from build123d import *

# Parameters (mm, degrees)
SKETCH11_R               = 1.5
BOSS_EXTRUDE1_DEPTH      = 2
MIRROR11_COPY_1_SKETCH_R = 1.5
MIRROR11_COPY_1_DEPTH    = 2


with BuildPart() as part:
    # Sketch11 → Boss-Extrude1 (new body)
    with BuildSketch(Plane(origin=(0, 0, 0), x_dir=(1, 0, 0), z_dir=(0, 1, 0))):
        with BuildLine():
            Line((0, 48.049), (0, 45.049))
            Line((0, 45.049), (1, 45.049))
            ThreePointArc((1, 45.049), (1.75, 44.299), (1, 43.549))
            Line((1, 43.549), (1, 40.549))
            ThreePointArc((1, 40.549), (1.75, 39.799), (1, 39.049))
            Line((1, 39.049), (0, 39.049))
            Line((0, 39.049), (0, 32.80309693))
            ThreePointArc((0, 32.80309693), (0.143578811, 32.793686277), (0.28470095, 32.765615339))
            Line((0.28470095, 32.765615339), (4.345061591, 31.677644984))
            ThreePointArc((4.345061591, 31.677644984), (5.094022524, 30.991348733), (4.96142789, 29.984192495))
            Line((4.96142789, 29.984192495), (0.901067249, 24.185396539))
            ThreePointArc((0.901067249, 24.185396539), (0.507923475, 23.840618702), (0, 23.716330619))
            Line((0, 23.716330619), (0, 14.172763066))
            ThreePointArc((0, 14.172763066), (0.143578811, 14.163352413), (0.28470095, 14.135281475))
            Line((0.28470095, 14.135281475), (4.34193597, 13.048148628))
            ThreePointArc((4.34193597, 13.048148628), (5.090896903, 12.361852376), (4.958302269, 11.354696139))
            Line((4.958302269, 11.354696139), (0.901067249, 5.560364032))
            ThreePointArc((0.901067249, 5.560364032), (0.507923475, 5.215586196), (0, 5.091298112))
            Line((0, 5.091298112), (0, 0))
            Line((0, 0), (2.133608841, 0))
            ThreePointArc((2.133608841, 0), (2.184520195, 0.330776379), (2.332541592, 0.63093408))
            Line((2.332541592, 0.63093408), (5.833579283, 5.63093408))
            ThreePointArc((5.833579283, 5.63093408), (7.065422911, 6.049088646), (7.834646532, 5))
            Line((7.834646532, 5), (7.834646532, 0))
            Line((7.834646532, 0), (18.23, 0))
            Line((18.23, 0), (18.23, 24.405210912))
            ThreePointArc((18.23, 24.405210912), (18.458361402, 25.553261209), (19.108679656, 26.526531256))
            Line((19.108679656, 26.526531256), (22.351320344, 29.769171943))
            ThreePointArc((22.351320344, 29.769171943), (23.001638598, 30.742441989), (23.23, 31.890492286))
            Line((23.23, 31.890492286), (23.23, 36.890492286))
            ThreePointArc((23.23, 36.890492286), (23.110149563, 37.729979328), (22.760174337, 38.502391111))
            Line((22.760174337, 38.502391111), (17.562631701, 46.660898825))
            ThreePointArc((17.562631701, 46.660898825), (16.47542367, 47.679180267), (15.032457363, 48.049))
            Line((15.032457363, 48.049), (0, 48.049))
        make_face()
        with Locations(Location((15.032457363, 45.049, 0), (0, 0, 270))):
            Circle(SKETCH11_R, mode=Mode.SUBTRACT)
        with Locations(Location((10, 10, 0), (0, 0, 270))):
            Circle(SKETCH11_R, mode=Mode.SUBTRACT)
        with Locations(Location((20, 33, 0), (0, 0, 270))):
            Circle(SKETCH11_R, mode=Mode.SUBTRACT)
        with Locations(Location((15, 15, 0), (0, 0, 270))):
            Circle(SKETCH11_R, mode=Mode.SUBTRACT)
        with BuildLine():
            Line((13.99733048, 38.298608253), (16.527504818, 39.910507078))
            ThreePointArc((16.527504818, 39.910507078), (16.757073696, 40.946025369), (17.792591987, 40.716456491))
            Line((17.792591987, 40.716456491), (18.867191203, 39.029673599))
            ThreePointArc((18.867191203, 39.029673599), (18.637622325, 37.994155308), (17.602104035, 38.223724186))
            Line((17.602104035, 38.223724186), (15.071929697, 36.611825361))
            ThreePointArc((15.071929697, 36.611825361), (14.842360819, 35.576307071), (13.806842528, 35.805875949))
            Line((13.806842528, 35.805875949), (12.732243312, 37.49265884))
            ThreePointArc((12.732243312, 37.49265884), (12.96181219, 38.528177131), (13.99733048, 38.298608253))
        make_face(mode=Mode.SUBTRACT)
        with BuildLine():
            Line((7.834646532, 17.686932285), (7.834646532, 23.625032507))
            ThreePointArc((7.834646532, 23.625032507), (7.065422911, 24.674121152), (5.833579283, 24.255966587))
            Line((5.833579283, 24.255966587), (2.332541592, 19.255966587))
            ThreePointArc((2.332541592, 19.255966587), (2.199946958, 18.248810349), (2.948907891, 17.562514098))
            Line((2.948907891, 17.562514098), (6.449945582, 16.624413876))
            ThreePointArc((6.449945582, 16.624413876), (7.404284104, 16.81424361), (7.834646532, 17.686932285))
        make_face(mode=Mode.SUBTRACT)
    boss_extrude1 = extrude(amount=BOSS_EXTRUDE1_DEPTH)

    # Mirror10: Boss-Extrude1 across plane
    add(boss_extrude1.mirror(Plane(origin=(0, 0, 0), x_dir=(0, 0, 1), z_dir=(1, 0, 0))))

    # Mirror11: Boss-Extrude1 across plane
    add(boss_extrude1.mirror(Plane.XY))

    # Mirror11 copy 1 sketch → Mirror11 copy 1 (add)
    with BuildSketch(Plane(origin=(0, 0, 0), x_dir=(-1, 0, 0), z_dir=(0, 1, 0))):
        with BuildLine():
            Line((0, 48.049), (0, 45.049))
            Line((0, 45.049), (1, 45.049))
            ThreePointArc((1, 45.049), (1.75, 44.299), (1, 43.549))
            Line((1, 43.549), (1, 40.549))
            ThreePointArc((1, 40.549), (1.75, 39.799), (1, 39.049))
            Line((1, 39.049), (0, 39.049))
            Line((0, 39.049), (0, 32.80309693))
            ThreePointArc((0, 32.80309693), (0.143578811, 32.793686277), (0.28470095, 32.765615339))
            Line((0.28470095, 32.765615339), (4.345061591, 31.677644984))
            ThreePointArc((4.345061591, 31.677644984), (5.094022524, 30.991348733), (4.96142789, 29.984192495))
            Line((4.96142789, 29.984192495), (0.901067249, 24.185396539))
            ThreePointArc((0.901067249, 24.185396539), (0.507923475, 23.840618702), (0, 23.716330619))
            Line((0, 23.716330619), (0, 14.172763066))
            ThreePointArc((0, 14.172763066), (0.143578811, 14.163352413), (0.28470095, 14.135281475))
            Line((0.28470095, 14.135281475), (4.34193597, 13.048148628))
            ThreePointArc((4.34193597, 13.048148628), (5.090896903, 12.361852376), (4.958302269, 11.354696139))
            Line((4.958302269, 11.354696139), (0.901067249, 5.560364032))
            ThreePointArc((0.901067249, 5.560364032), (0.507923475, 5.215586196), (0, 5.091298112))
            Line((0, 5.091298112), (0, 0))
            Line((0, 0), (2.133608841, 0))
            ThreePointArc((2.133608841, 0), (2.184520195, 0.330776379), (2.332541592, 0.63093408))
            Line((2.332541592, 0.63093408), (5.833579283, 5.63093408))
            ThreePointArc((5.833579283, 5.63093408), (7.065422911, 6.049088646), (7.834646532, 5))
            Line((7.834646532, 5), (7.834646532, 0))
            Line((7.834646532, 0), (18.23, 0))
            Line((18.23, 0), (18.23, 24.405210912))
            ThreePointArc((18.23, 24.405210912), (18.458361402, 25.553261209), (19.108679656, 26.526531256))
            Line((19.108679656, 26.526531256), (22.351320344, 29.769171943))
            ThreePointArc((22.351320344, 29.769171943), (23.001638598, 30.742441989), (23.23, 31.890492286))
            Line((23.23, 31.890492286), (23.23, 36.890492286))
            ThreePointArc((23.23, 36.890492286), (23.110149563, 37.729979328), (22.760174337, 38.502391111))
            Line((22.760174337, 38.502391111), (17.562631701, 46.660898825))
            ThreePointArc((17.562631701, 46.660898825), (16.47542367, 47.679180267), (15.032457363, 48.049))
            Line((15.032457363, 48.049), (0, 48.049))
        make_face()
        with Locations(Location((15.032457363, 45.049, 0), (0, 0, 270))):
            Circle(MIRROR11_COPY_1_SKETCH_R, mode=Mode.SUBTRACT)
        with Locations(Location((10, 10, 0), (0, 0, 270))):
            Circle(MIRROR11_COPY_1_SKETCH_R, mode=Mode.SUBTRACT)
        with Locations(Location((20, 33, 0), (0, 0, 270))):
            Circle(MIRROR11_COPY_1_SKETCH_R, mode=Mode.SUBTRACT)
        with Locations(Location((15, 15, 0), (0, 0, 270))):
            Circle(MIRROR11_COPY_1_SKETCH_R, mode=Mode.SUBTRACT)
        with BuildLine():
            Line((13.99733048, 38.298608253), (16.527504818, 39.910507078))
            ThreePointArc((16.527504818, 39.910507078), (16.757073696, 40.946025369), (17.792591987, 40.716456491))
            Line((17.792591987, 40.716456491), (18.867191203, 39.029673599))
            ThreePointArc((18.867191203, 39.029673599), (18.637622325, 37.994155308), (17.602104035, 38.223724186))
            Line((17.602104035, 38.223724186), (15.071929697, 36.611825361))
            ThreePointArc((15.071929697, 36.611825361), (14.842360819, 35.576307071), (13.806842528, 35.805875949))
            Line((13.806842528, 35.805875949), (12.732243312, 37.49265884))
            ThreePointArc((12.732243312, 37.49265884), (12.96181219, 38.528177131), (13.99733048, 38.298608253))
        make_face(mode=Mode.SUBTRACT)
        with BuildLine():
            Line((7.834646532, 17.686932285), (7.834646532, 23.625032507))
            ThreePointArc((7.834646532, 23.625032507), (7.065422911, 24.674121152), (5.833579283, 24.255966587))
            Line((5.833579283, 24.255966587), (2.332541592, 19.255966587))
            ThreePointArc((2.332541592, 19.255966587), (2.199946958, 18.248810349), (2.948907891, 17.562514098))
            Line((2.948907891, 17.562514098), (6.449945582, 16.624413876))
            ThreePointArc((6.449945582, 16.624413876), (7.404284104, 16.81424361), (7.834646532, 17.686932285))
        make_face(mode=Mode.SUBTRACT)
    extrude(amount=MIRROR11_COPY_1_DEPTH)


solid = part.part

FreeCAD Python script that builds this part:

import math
import FreeCAD as App
import Part
import Sketcher
Q = App.Units.Quantity

doc = App.newDocument("Part")
params = doc.addObject("Spreadsheet::Sheet", "Params")
for row, (alias, value) in enumerate([
    ("sketch1_diameter", "3 mm"),
    ("sketch1_radius", "3 mm"),
    ("sketch1_radius2", "1.1 mm"),
    ("sketch1_width", "1 mm"),
    ("sketch1_height", "5 mm"),
    ("pad1_length", "2 mm"),
    ("sketch2_diameter", "3 mm"),
    ("sketch2_radius", "3 mm"),
    ("sketch2_radius2", "1.1 mm"),
    ("sketch2_width", "1 mm"),
    ("sketch2_height", "5 mm"),
    ("pad2_length", "2 mm"),
], start=1):
    params.set(f"A{row}", alias)
    params.set(f"B{row}", "=" + value)
    params.setAlias(f"B{row}", alias)

body = doc.addObject("PartDesign::Body", "Body")

# Sketch on XZ plane
sketch1 = body.newObject("Sketcher::SketchObject", "Sketch")
sketch1.AttachmentSupport = (doc.getObject("XZ_Plane"), [""])
sketch1.MapMode = "FlatFace"
sketch1.addGeometry(Part.LineSegment(App.Vector(0, -48.049, 0), App.Vector(0, -45.049, 0)), False)
sketch1.addGeometry(Part.LineSegment(App.Vector(0, -45.049, 0), App.Vector(1, -45.049, 0)), False)
sketch1.addGeometry(Part.ArcOfCircle(Part.Circle(App.Vector(1, -44.299, 0), App.Vector(0, 0, 1), 0.75), math.radians(-90), math.radians(90)), False)
sketch1.addGeometry(Part.LineSegment(App.Vector(1, -43.549, 0), App.Vector(1, -40.549, 0)), False)
sketch1.addGeometry(Part.ArcOfCircle(Part.Circle(App.Vector(1, -39.799, 0), App.Vector(0, 0, 1), 0.75), math.radians(-90), math.radians(90)), False)
sketch1.addGeometry(Part.LineSegment(App.Vector(1, -39.049, 0), App.Vector(0, -39.049, 0)), False)
sketch1.addGeometry(Part.LineSegment(App.Vector(0, -39.049, 0), App.Vector(0, -32.803097, 0)), False)
sketch1.addGeometry(Part.ArcOfCircle(Part.Circle(App.Vector(0, -31.703097, 0), App.Vector(0, 0, 1), 1.1), math.radians(-90), math.radians(-75.000001)), False)
sketch1.addGeometry(Part.LineSegment(App.Vector(0.284701, -32.765615, 0), App.Vector(4.345062, -31.677645, 0)), False)
sketch1.addGeometry(Part.ArcOfCircle(Part.Circle(App.Vector(4.060361, -30.615127, 0), App.Vector(0, 0, 1), 1.1), math.radians(-75), math.radians(35)), False)
sketch1.addGeometry(Part.LineSegment(App.Vector(4.961428, -29.984192, 0), App.Vector(0.901067, -24.185397, 0)), False)
sketch1.addGeometry(Part.ArcOfCircle(Part.Circle(App.Vector(0, -24.816331, 0), App.Vector(0, 0, 1), 1.1), math.radians(35), math.radians(90)), False)
sketch1.addGeometry(Part.LineSegment(App.Vector(0, -23.716331, 0), App.Vector(0, -14.172763, 0)), False)
sketch1.addGeometry(Part.ArcOfCircle(Part.Circle(App.Vector(0, -13.072763, 0), App.Vector(0, 0, 1), 1.1), math.radians(-90), math.radians(-75.000001)), False)
sketch1.addGeometry(Part.LineSegment(App.Vector(0.284701, -14.135281, 0), App.Vector(4.341936, -13.048149, 0)), False)
sketch1.addGeometry(Part.ArcOfCircle(Part.Circle(App.Vector(4.057235, -11.98563, 0), App.Vector(0, 0, 1), 1.1), math.radians(-75), math.radians(35)), False)
sketch1.addGeometry(Part.LineSegment(App.Vector(4.958302, -11.354696, 0), App.Vector(0.901067, -5.560364, 0)), False)
sketch1.addGeometry(Part.ArcOfCircle(Part.Circle(App.Vector(0, -6.191298, 0), App.Vector(0, 0, 1), 1.1), math.radians(35), math.radians(90)), False)
sketch1.addGeometry(Part.LineSegment(App.Vector(0, -5.091298, 0), App.Vector(0, 0, 0)), False)
sketch1.addGeometry(Part.LineSegment(App.Vector(0, 0, 0), App.Vector(2.133609, 0, 0)), False)
sketch1.addGeometry(Part.ArcOfCircle(Part.Circle(App.Vector(3.233609, 0, 0), App.Vector(0, 0, 1), 1.1), math.radians(180), math.radians(215)), False)
sketch1.addGeometry(Part.LineSegment(App.Vector(2.332542, -0.630934, 0), App.Vector(5.833579, -5.630934, 0)), False)
sketch1.addGeometry(Part.ArcOfCircle(Part.Circle(App.Vector(6.734647, -5, 0), App.Vector(0, 0, 1), 1.1), math.radians(-145), math.radians(0)), False)
sketch1.addGeometry(Part.LineSegment(App.Vector(7.834647, -5, 0), App.Vector(7.834647, 0, 0)), False)
sketch1.addGeometry(Part.LineSegment(App.Vector(7.834647, 0, 0), App.Vector(18.23, 0, 0)), False)
sketch1.addGeometry(Part.LineSegment(App.Vector(18.23, 0, 0), App.Vector(18.23, -24.405211, 0)), False)
sketch1.addGeometry(Part.ArcOfCircle(Part.Circle(App.Vector(21.23, -24.405211, 0), App.Vector(0, 0, 1), 3), math.radians(180), math.radians(225)), False)
sketch1.addGeometry(Part.LineSegment(App.Vector(19.10868, -26.526531, 0), App.Vector(22.35132, -29.769172, 0)), False)
sketch1.addGeometry(Part.ArcOfCircle(Part.Circle(App.Vector(20.23, -31.890492, 0), App.Vector(0, 0, 1), 3), math.radians(0), math.radians(45)), False)
sketch1.addGeometry(Part.LineSegment(App.Vector(23.23, -31.890492, 0), App.Vector(23.23, -36.890492, 0)), False)
sketch1.addGeometry(Part.ArcOfCircle(Part.Circle(App.Vector(20.23, -36.890492, 0), App.Vector(0, 0, 1), 3), math.radians(-32.5), math.radians(0)), False)
sketch1.addGeometry(Part.LineSegment(App.Vector(22.760174, -38.502391, 0), App.Vector(17.562632, -46.660899, 0)), False)
sketch1.addGeometry(Part.ArcOfCircle(Part.Circle(App.Vector(15.032457, -45.049, 0), App.Vector(0, 0, 1), 3), math.radians(-90), math.radians(-32.5)), False)
sketch1.addGeometry(Part.LineSegment(App.Vector(15.032457, -48.049, 0), App.Vector(0, -48.049, 0)), False)
sketch1.addGeometry(Part.Circle(App.Vector(10, -10, 0), App.Vector(0, 0, 1), 1.5), False)
sketch1.addGeometry(Part.LineSegment(App.Vector(7.834647, -23.625033, 0), App.Vector(7.834647, -17.686932, 0)), False)
sketch1.addGeometry(Part.ArcOfCircle(Part.Circle(App.Vector(6.734647, -17.686932, 0), App.Vector(0, 0, 1), 1.1), math.radians(0), math.radians(105)), False)
sketch1.addGeometry(Part.LineSegment(App.Vector(6.449946, -16.624414, 0), App.Vector(2.948908, -17.562514, 0)), False)
sketch1.addGeometry(Part.ArcOfCircle(Part.Circle(App.Vector(3.233609, -18.625033, 0), App.Vector(0, 0, 1), 1.1), math.radians(105), math.radians(215)), False)
sketch1.addGeometry(Part.LineSegment(App.Vector(2.332542, -19.255967, 0), App.Vector(5.833579, -24.255967, 0)), False)
sketch1.addGeometry(Part.ArcOfCircle(Part.Circle(App.Vector(6.734647, -23.625033, 0), App.Vector(0, 0, 1), 1.1), math.radians(-145), math.radians(0)), False)
sketch1.addGeometry(Part.Circle(App.Vector(15, -15, 0), App.Vector(0, 0, 1), 1.5), False)
sketch1.addGeometry(Part.Circle(App.Vector(20, -33, 0), App.Vector(0, 0, 1), 1.5), False)
sketch1.addGeometry(Part.ArcOfCircle(Part.Circle(App.Vector(13.364787, -37.895634, 0), App.Vector(0, 0, 1), 0.75), math.radians(147.5), math.radians(327.5)), False)
sketch1.addGeometry(Part.LineSegment(App.Vector(13.99733, -38.298608, 0), App.Vector(16.527505, -39.910507, 0)), False)
sketch1.addGeometry(Part.ArcOfCircle(Part.Circle(App.Vector(17.160048, -40.313482, 0), App.Vector(0, 0, 1), 0.75), math.radians(147.5), math.radians(327.5)), False)
sketch1.addGeometry(Part.LineSegment(App.Vector(17.792592, -40.716456, 0), App.Vector(18.867191, -39.029674, 0)), False)
sketch1.addGeometry(Part.ArcOfCircle(Part.Circle(App.Vector(18.234648, -38.626699, 0), App.Vector(0, 0, 1), 0.75), math.radians(-32.5), math.radians(147.5)), False)
sketch1.addGeometry(Part.LineSegment(App.Vector(17.602104, -38.223724, 0), App.Vector(15.07193, -36.611825, 0)), False)
sketch1.addGeometry(Part.ArcOfCircle(Part.Circle(App.Vector(14.439386, -36.208851, 0), App.Vector(0, 0, 1), 0.75), math.radians(-32.5), math.radians(147.5)), False)
sketch1.addGeometry(Part.LineSegment(App.Vector(13.806843, -35.805876, 0), App.Vector(12.732243, -37.492659, 0)), False)
sketch1.addGeometry(Part.Circle(App.Vector(15.032457, -45.049, 0), App.Vector(0, 0, 1), 1.5), False)
sketch1.addConstraint(Sketcher.Constraint("Coincident", 0, 2, 1, 1))
sketch1.addConstraint(Sketcher.Constraint("Tangent", 1, 2, 2, 1))
sketch1.addConstraint(Sketcher.Constraint("Coincident", 2, 2, 3, 1))
sketch1.addConstraint(Sketcher.Constraint("Coincident", 3, 2, 4, 1))
sketch1.addConstraint(Sketcher.Constraint("Tangent", 4, 2, 5, 1))
sketch1.addConstraint(Sketcher.Constraint("Coincident", 5, 2, 6, 1))
sketch1.addConstraint(Sketcher.Constraint("Coincident", 6, 2, 7, 1))
sketch1.addConstraint(Sketcher.Constraint("Tangent", 7, 2, 8, 1))
sketch1.addConstraint(Sketcher.Constraint("Tangent", 8, 2, 9, 1))
sketch1.addConstraint(Sketcher.Constraint("Tangent", 9, 2, 10, 1))
sketch1.addConstraint(Sketcher.Constraint("Tangent", 10, 2, 11, 1))
sketch1.addConstraint(Sketcher.Constraint("Coincident", 11, 2, 12, 1))
sketch1.addConstraint(Sketcher.Constraint("Coincident", 12, 2, 13, 1))
sketch1.addConstraint(Sketcher.Constraint("Tangent", 13, 2, 14, 1))
sketch1.addConstraint(Sketcher.Constraint("Tangent", 14, 2, 15, 1))
sketch1.addConstraint(Sketcher.Constraint("Tangent", 15, 2, 16, 1))
sketch1.addConstraint(Sketcher.Constraint("Tangent", 16, 2, 17, 1))
sketch1.addConstraint(Sketcher.Constraint("Coincident", 17, 2, 18, 1))
sketch1.addConstraint(Sketcher.Constraint("Coincident", 18, 2, 19, 1))
sketch1.addConstraint(Sketcher.Constraint("Coincident", 19, 2, 20, 1))
sketch1.addConstraint(Sketcher.Constraint("Tangent", 20, 2, 21, 1))
sketch1.addConstraint(Sketcher.Constraint("Tangent", 21, 2, 22, 1))
sketch1.addConstraint(Sketcher.Constraint("Tangent", 22, 2, 23, 1))
sketch1.addConstraint(Sketcher.Constraint("Coincident", 23, 2, 24, 1))
sketch1.addConstraint(Sketcher.Constraint("Coincident", 24, 2, 25, 1))
sketch1.addConstraint(Sketcher.Constraint("Tangent", 25, 2, 26, 1))
sketch1.addConstraint(Sketcher.Constraint("Tangent", 26, 2, 27, 1))
sketch1.addConstraint(Sketcher.Constraint("Tangent", 27, 2, 28, 2))
sketch1.addConstraint(Sketcher.Constraint("Tangent", 28, 1, 29, 1))
sketch1.addConstraint(Sketcher.Constraint("Tangent", 29, 2, 30, 2))
sketch1.addConstraint(Sketcher.Constraint("Tangent", 30, 1, 31, 1))
sketch1.addConstraint(Sketcher.Constraint("Tangent", 31, 2, 32, 2))
sketch1.addConstraint(Sketcher.Constraint("Tangent", 32, 1, 33, 1))
sketch1.addConstraint(Sketcher.Constraint("Coincident", 33, 2, 0, 1))
sketch1.addConstraint(Sketcher.Constraint("Tangent", 35, 2, 36, 1))
sketch1.addConstraint(Sketcher.Constraint("Tangent", 36, 2, 37, 1))
sketch1.addConstraint(Sketcher.Constraint("Tangent", 37, 2, 38, 1))
sketch1.addConstraint(Sketcher.Constraint("Tangent", 38, 2, 39, 1))
sketch1.addConstraint(Sketcher.Constraint("Tangent", 39, 2, 40, 1))
sketch1.addConstraint(Sketcher.Constraint("Tangent", 40, 2, 35, 1))
sketch1.addConstraint(Sketcher.Constraint("Coincident", 43, 2, 44, 1))
sketch1.addConstraint(Sketcher.Constraint("Coincident", 44, 2, 45, 1))
sketch1.addConstraint(Sketcher.Constraint("Tangent", 45, 2, 46, 1))
sketch1.addConstraint(Sketcher.Constraint("Tangent", 46, 2, 47, 1))
sketch1.addConstraint(Sketcher.Constraint("Coincident", 47, 2, 48, 1))
sketch1.addConstraint(Sketcher.Constraint("Coincident", 48, 2, 49, 1))
sketch1.addConstraint(Sketcher.Constraint("Tangent", 49, 2, 50, 1))
sketch1.addConstraint(Sketcher.Constraint("Tangent", 50, 2, 43, 1))
sketch1.addConstraint(Sketcher.Constraint("Vertical", 0))
sketch1.addConstraint(Sketcher.Constraint("Horizontal", 1))
sketch1.addConstraint(Sketcher.Constraint("Vertical", 3))
sketch1.addConstraint(Sketcher.Constraint("Horizontal", 5))
sketch1.addConstraint(Sketcher.Constraint("Vertical", 6))
sketch1.addConstraint(Sketcher.Constraint("Vertical", 12))
sketch1.addConstraint(Sketcher.Constraint("Vertical", 18))
sketch1.addConstraint(Sketcher.Constraint("Horizontal", 19))
sketch1.addConstraint(Sketcher.Constraint("Vertical", 23))
sketch1.addConstraint(Sketcher.Constraint("Horizontal", 24))
sketch1.addConstraint(Sketcher.Constraint("Vertical", 25))
sketch1.addConstraint(Sketcher.Constraint("Vertical", 29))
sketch1.addConstraint(Sketcher.Constraint("Horizontal", 33))
sketch1.addConstraint(Sketcher.Constraint("Vertical", 35))
sketch1.addConstraint(Sketcher.Constraint("Coincident", 18, 2, -1, 1))
sketch1.addConstraint(Sketcher.Constraint("Coincident", 51, 3, 32, 3))
sketch1.addConstraint(Sketcher.Constraint("Equal", 2, 4))
sketch1.addConstraint(Sketcher.Constraint("Equal", 7, 9))
sketch1.addConstraint(Sketcher.Constraint("Equal", 9, 11))
sketch1.addConstraint(Sketcher.Constraint("Equal", 11, 13))
sketch1.addConstraint(Sketcher.Constraint("Equal", 13, 15))
sketch1.addConstraint(Sketcher.Constraint("Equal", 15, 17))
sketch1.addConstraint(Sketcher.Constraint("Equal", 17, 20))
sketch1.addConstraint(Sketcher.Constraint("Equal", 20, 22))
sketch1.addConstraint(Sketcher.Constraint("Equal", 26, 28))
sketch1.addConstraint(Sketcher.Constraint("Equal", 28, 30))
sketch1.addConstraint(Sketcher.Constraint("Equal", 30, 32))
sketch1.addConstraint(Sketcher.Constraint("Equal", 22, 36))
sketch1.addConstraint(Sketcher.Constraint("Equal", 36, 38))
sketch1.addConstraint(Sketcher.Constraint("Equal", 38, 40))
sketch1.addConstraint(Sketcher.Constraint("Equal", 34, 41))
sketch1.addConstraint(Sketcher.Constraint("Equal", 41, 42))
sketch1.addConstraint(Sketcher.Constraint("Equal", 4, 43))
sketch1.addConstraint(Sketcher.Constraint("Equal", 43, 45))
sketch1.addConstraint(Sketcher.Constraint("Equal", 45, 47))
sketch1.addConstraint(Sketcher.Constraint("Equal", 47, 49))
sketch1.addConstraint(Sketcher.Constraint("Equal", 42, 51))
sketch1.addConstraint(Sketcher.Constraint("PointOnObject", 7, 3, -2))
sketch1.addConstraint(Sketcher.Constraint("PointOnObject", 11, 3, -2))
sketch1.addConstraint(Sketcher.Constraint("PointOnObject", 13, 3, -2))
sketch1.addConstraint(Sketcher.Constraint("PointOnObject", 17, 3, -2))
sketch1.addConstraint(Sketcher.Constraint("PointOnObject", 20, 3, -1))
sketch1.addConstraint(Sketcher.Constraint("PointOnObject", 0, 2, -2))
sketch1.addConstraint(Sketcher.Constraint("PointOnObject", 5, 2, -2))
sketch1.addConstraint(Sketcher.Constraint("PointOnObject", 11, 2, -2))
sketch1.addConstraint(Sketcher.Constraint("PointOnObject", 23, 2, -1))
sketch1.addConstraint(Sketcher.Constraint("Parallel", 8, 14))
sketch1.addConstraint(Sketcher.Constraint("Parallel", 10, 16))
sketch1.addConstraint(Sketcher.Constraint("Parallel", 16, 21))
sketch1.addConstraint(Sketcher.Constraint("Parallel", 14, 37))
sketch1.addConstraint(Sketcher.Constraint("Parallel", 21, 39))
sketch1.addConstraint(Sketcher.Constraint("Perpendicular", 31, 44))
sketch1.addConstraint(Sketcher.Constraint("Perpendicular", 44, 46))
sketch1.addConstraint(Sketcher.Constraint("Perpendicular", 46, 48))
sketch1.addConstraint(Sketcher.Constraint("Perpendicular", 48, 50))
sketch1.addConstraint(Sketcher.Constraint("Horizontal", 51, 3, 0, 2))
sketch1.addConstraint(Sketcher.Constraint("Vertical", 2, 3, 4, 3))
sketch1.addConstraint(Sketcher.Constraint("Vertical", 22, 3, 36, 3))
sketch1.addConstraint(Sketcher.Constraint("Vertical", 20, 3, 38, 3))
sketch1.addConstraint(Sketcher.Constraint("Vertical", 1, 2, 2, 2))
sketch1.addConstraint(Sketcher.Constraint("Equal", 0, 3))
sketch1.addConstraint(Sketcher.Constraint("Equal", 23, 29))
sketch1.addConstraint(Sketcher.Constraint("Equal", 46, 50))
sketch1.addConstraint(Sketcher.Constraint("Diameter", 34, 3.0))
sketch1.addConstraint(Sketcher.Constraint("Radius", 26, 3.0))
sketch1.addConstraint(Sketcher.Constraint("Radius", 7, 1.1))
sketch1.addConstraint(Sketcher.Constraint("DistanceX", 1, 1, 1, 2, 1.0))
sketch1.addConstraint(Sketcher.Constraint("DistanceY", 23, 1, 23, 2, 5.0))
sketch1.addConstraint(Sketcher.Constraint("Angle", 8, Q("15 deg")))
sketch1.addConstraint(Sketcher.Constraint("Angle", 10, Q("125 deg")))
sketch1.addConstraint(Sketcher.Constraint("Angle", 27, Q("-45 deg")))
sketch1.addConstraint(Sketcher.Constraint("Radius", 2, 0.75))
sketch1.addConstraint(Sketcher.Constraint("Distance", 44, 3.0))
sketch1.addConstraint(Sketcher.Constraint("Distance", 46, 2.0))
sketch1.addConstraint(Sketcher.Constraint("DistanceX", -1, 1, 34, 3, 10.0))
sketch1.addConstraint(Sketcher.Constraint("DistanceY", 34, 3, -1, 1, 10.0))
sketch1.addConstraint(Sketcher.Constraint("DistanceX", -1, 1, 41, 3, 15.0))
sketch1.addConstraint(Sketcher.Constraint("DistanceY", 41, 3, -1, 1, 15.0))
sketch1.addConstraint(Sketcher.Constraint("DistanceX", -1, 1, 42, 3, 20.0))
sketch1.addConstraint(Sketcher.Constraint("DistanceY", 42, 3, -1, 1, 33.0))
sketch1.addConstraint(Sketcher.Constraint("Angle", 31, Q("-122.5 deg")))
sketch1.addConstraint(Sketcher.Constraint("DistanceX", -1, 1, 26, 3, 21.23))
sketch1.addConstraint(Sketcher.Constraint("DistanceX", -1, 1, 28, 3, 20.23))
sketch1.addConstraint(Sketcher.Constraint("DistanceY", 18, 1, 18, 2, 5.091298))
sketch1.addConstraint(Sketcher.Constraint("DistanceY", 2, 3, -1, 1, 44.299))
sketch1.addConstraint(Sketcher.Constraint("DistanceX", 19, 1, 19, 2, 2.133609))
sketch1.addConstraint(Sketcher.Constraint("DistanceY", 25, 2, 25, 1, 24.405211))
sketch1.addConstraint(Sketcher.Constraint("DistanceY", 47, 3, -1, 1, 38.626699))
sketch1.addConstraint(Sketcher.Constraint("Distance", 14, 4.200359))
sketch1.addConstraint(Sketcher.Constraint("DistanceY", 6, 1, 6, 2, 6.245903))
sketch1.addConstraint(Sketcher.Constraint("DistanceY", 12, 1, 12, 2, 9.543568))
sketch1.addConstraint(Sketcher.Constraint("DistanceX", -1, 1, 45, 3, 17.160048))
sketch1.addConstraint(Sketcher.Constraint("DistanceY", 49, 3, -1, 1, 36.208851))
sketch1.addConstraint(Sketcher.Constraint("DistanceX", -1, 1, 43, 2, 13.99733))
sketch1.addConstraint(Sketcher.Constraint("DistanceX", -1, 1, 48, 2, 15.07193))
sketch1.addConstraint(Sketcher.Constraint("DistanceY", 36, 3, -1, 1, 17.686932))
sketch1.setExpression("Constraints[111]", "Params.sketch1_diameter")
sketch1.setExpression("Constraints[112]", "Params.sketch1_radius")
sketch1.setExpression("Constraints[113]", "Params.sketch1_radius2")
sketch1.setExpression("Constraints[114]", "Params.sketch1_width")
sketch1.setExpression("Constraints[115]", "Params.sketch1_height")
pad1 = body.newObject("PartDesign::Pad", "Pad")
pad1.Profile = sketch1
pad1.setExpression("Length", "Params.pad1_length")
pad1.Reversed = True
doc.recompute()

mirrored = body.newObject("PartDesign::Mirrored", "Mirrored")
mirrored.Originals = [pad1]
mirrored.MirrorPlane = (doc.getObject("YZ_Plane"), [""])
body.Tip = mirrored
doc.recompute()

mirrored2 = body.newObject("PartDesign::Mirrored", "Mirrored001")
mirrored2.Originals = [pad1]
mirrored2.MirrorPlane = (doc.getObject("XY_Plane"), [""])
body.Tip = mirrored2

# Sketch on XZ plane
sketch2 = body.newObject("Sketcher::SketchObject", "Sketch001")
sketch2.AttachmentSupport = (doc.getObject("XZ_Plane"), [""])
sketch2.MapMode = "FlatFace"
sketch2.addGeometry(Part.LineSegment(App.Vector(0, 48.049, 0), App.Vector(0, 45.049, 0)), False)
sketch2.addGeometry(Part.LineSegment(App.Vector(0, 45.049, 0), App.Vector(-1, 45.049, 0)), False)
sketch2.addGeometry(Part.ArcOfCircle(Part.Circle(App.Vector(-1, 44.299, 0), App.Vector(0, 0, 1), 0.75), math.radians(90), math.radians(270)), False)
sketch2.addGeometry(Part.LineSegment(App.Vector(-1, 43.549, 0), App.Vector(-1, 40.549, 0)), False)
sketch2.addGeometry(Part.ArcOfCircle(Part.Circle(App.Vector(-1, 39.799, 0), App.Vector(0, 0, 1), 0.75), math.radians(90), math.radians(270)), False)
sketch2.addGeometry(Part.LineSegment(App.Vector(-1, 39.049, 0), App.Vector(0, 39.049, 0)), False)
sketch2.addGeometry(Part.LineSegment(App.Vector(0, 39.049, 0), App.Vector(0, 32.803097, 0)), False)
sketch2.addGeometry(Part.ArcOfCircle(Part.Circle(App.Vector(0, 31.703097, 0), App.Vector(0, 0, 1), 1.1), math.radians(90), math.radians(104.999999)), False)
sketch2.addGeometry(Part.LineSegment(App.Vector(-0.284701, 32.765615, 0), App.Vector(-4.345062, 31.677645, 0)), False)
sketch2.addGeometry(Part.ArcOfCircle(Part.Circle(App.Vector(-4.060361, 30.615127, 0), App.Vector(0, 0, 1), 1.1), math.radians(105), math.radians(215)), False)
sketch2.addGeometry(Part.LineSegment(App.Vector(-4.961428, 29.984192, 0), App.Vector(-0.901067, 24.185397, 0)), False)
sketch2.addGeometry(Part.ArcOfCircle(Part.Circle(App.Vector(0, 24.816331, 0), App.Vector(0, 0, 1), 1.1), math.radians(-145), math.radians(-90)), False)
sketch2.addGeometry(Part.LineSegment(App.Vector(0, 23.716331, 0), App.Vector(0, 14.172763, 0)), False)
sketch2.addGeometry(Part.ArcOfCircle(Part.Circle(App.Vector(0, 13.072763, 0), App.Vector(0, 0, 1), 1.1), math.radians(90), math.radians(104.999999)), False)
sketch2.addGeometry(Part.LineSegment(App.Vector(-0.284701, 14.135281, 0), App.Vector(-4.341936, 13.048149, 0)), False)
sketch2.addGeometry(Part.ArcOfCircle(Part.Circle(App.Vector(-4.057235, 11.98563, 0), App.Vector(0, 0, 1), 1.1), math.radians(105), math.radians(215)), False)
sketch2.addGeometry(Part.LineSegment(App.Vector(-4.958302, 11.354696, 0), App.Vector(-0.901067, 5.560364, 0)), False)
sketch2.addGeometry(Part.ArcOfCircle(Part.Circle(App.Vector(0, 6.191298, 0), App.Vector(0, 0, 1), 1.1), math.radians(-145), math.radians(-90)), False)
sketch2.addGeometry(Part.LineSegment(App.Vector(0, 5.091298, 0), App.Vector(0, 0, 0)), False)
sketch2.addGeometry(Part.LineSegment(App.Vector(0, 0, 0), App.Vector(-2.133609, 0, 0)), False)
sketch2.addGeometry(Part.ArcOfCircle(Part.Circle(App.Vector(-3.233609, 0, 0), App.Vector(0, 0, 1), 1.1), math.radians(0), math.radians(35)), False)
sketch2.addGeometry(Part.LineSegment(App.Vector(-2.332542, 0.630934, 0), App.Vector(-5.833579, 5.630934, 0)), False)
sketch2.addGeometry(Part.ArcOfCircle(Part.Circle(App.Vector(-6.734647, 5, 0), App.Vector(0, 0, 1), 1.1), math.radians(35), math.radians(180)), False)
sketch2.addGeometry(Part.LineSegment(App.Vector(-7.834647, 5, 0), App.Vector(-7.834647, 0, 0)), False)
sketch2.addGeometry(Part.LineSegment(App.Vector(-7.834647, 0, 0), App.Vector(-18.23, 0, 0)), False)
sketch2.addGeometry(Part.LineSegment(App.Vector(-18.23, 0, 0), App.Vector(-18.23, 24.405211, 0)), False)
sketch2.addGeometry(Part.ArcOfCircle(Part.Circle(App.Vector(-21.23, 24.405211, 0), App.Vector(0, 0, 1), 3), math.radians(0), math.radians(45)), False)
sketch2.addGeometry(Part.LineSegment(App.Vector(-19.10868, 26.526531, 0), App.Vector(-22.35132, 29.769172, 0)), False)
sketch2.addGeometry(Part.ArcOfCircle(Part.Circle(App.Vector(-20.23, 31.890492, 0), App.Vector(0, 0, 1), 3), math.radians(180), math.radians(225)), False)
sketch2.addGeometry(Part.LineSegment(App.Vector(-23.23, 31.890492, 0), App.Vector(-23.23, 36.890492, 0)), False)
sketch2.addGeometry(Part.ArcOfCircle(Part.Circle(App.Vector(-20.23, 36.890492, 0), App.Vector(0, 0, 1), 3), math.radians(147.5), math.radians(180)), False)
sketch2.addGeometry(Part.LineSegment(App.Vector(-22.760174, 38.502391, 0), App.Vector(-17.562632, 46.660899, 0)), False)
sketch2.addGeometry(Part.ArcOfCircle(Part.Circle(App.Vector(-15.032457, 45.049, 0), App.Vector(0, 0, 1), 3), math.radians(90), math.radians(147.5)), False)
sketch2.addGeometry(Part.LineSegment(App.Vector(-15.032457, 48.049, 0), App.Vector(0, 48.049, 0)), False)
sketch2.addGeometry(Part.Circle(App.Vector(-10, 10, 0), App.Vector(0, 0, 1), 1.5), False)
sketch2.addGeometry(Part.LineSegment(App.Vector(-7.834647, 23.625033, 0), App.Vector(-7.834647, 17.686932, 0)), False)
sketch2.addGeometry(Part.ArcOfCircle(Part.Circle(App.Vector(-6.734647, 17.686932, 0), App.Vector(0, 0, 1), 1.1), math.radians(180), math.radians(285)), False)
sketch2.addGeometry(Part.LineSegment(App.Vector(-6.449946, 16.624414, 0), App.Vector(-2.948908, 17.562514, 0)), False)
sketch2.addGeometry(Part.ArcOfCircle(Part.Circle(App.Vector(-3.233609, 18.625033, 0), App.Vector(0, 0, 1), 1.1), math.radians(-75), math.radians(35)), False)
sketch2.addGeometry(Part.LineSegment(App.Vector(-2.332542, 19.255967, 0), App.Vector(-5.833579, 24.255967, 0)), False)
sketch2.addGeometry(Part.ArcOfCircle(Part.Circle(App.Vector(-6.734647, 23.625033, 0), App.Vector(0, 0, 1), 1.1), math.radians(35), math.radians(180)), False)
sketch2.addGeometry(Part.Circle(App.Vector(-15, 15, 0), App.Vector(0, 0, 1), 1.5), False)
sketch2.addGeometry(Part.Circle(App.Vector(-20, 33, 0), App.Vector(0, 0, 1), 1.5), False)
sketch2.addGeometry(Part.ArcOfCircle(Part.Circle(App.Vector(-13.364787, 37.895634, 0), App.Vector(0, 0, 1), 0.75), math.radians(-32.5), math.radians(147.5)), False)
sketch2.addGeometry(Part.LineSegment(App.Vector(-13.99733, 38.298608, 0), App.Vector(-16.527505, 39.910507, 0)), False)
sketch2.addGeometry(Part.ArcOfCircle(Part.Circle(App.Vector(-17.160048, 40.313482, 0), App.Vector(0, 0, 1), 0.75), math.radians(-32.5), math.radians(147.5)), False)
sketch2.addGeometry(Part.LineSegment(App.Vector(-17.792592, 40.716456, 0), App.Vector(-18.867191, 39.029674, 0)), False)
sketch2.addGeometry(Part.ArcOfCircle(Part.Circle(App.Vector(-18.234648, 38.626699, 0), App.Vector(0, 0, 1), 0.75), math.radians(147.5), math.radians(327.5)), False)
sketch2.addGeometry(Part.LineSegment(App.Vector(-17.602104, 38.223724, 0), App.Vector(-15.07193, 36.611825, 0)), False)
sketch2.addGeometry(Part.ArcOfCircle(Part.Circle(App.Vector(-14.439386, 36.208851, 0), App.Vector(0, 0, 1), 0.75), math.radians(147.5), math.radians(327.5)), False)
sketch2.addGeometry(Part.LineSegment(App.Vector(-13.806843, 35.805876, 0), App.Vector(-12.732243, 37.492659, 0)), False)
sketch2.addGeometry(Part.Circle(App.Vector(-15.032457, 45.049, 0), App.Vector(0, 0, 1), 1.5), False)
sketch2.addConstraint(Sketcher.Constraint("Coincident", 0, 2, 1, 1))
sketch2.addConstraint(Sketcher.Constraint("Tangent", 1, 2, 2, 1))
sketch2.addConstraint(Sketcher.Constraint("Coincident", 2, 2, 3, 1))
sketch2.addConstraint(Sketcher.Constraint("Coincident", 3, 2, 4, 1))
sketch2.addConstraint(Sketcher.Constraint("Tangent", 4, 2, 5, 1))
sketch2.addConstraint(Sketcher.Constraint("Coincident", 5, 2, 6, 1))
sketch2.addConstraint(Sketcher.Constraint("Coincident", 6, 2, 7, 1))
sketch2.addConstraint(Sketcher.Constraint("Tangent", 7, 2, 8, 1))
sketch2.addConstraint(Sketcher.Constraint("Tangent", 8, 2, 9, 1))
sketch2.addConstraint(Sketcher.Constraint("Tangent", 9, 2, 10, 1))
sketch2.addConstraint(Sketcher.Constraint("Tangent", 10, 2, 11, 1))
sketch2.addConstraint(Sketcher.Constraint("Coincident", 11, 2, 12, 1))
sketch2.addConstraint(Sketcher.Constraint("Coincident", 12, 2, 13, 1))
sketch2.addConstraint(Sketcher.Constraint("Tangent", 13, 2, 14, 1))
sketch2.addConstraint(Sketcher.Constraint("Tangent", 14, 2, 15, 1))
sketch2.addConstraint(Sketcher.Constraint("Tangent", 15, 2, 16, 1))
sketch2.addConstraint(Sketcher.Constraint("Tangent", 16, 2, 17, 1))
sketch2.addConstraint(Sketcher.Constraint("Coincident", 17, 2, 18, 1))
sketch2.addConstraint(Sketcher.Constraint("Coincident", 18, 2, 19, 1))
sketch2.addConstraint(Sketcher.Constraint("Coincident", 19, 2, 20, 1))
sketch2.addConstraint(Sketcher.Constraint("Tangent", 20, 2, 21, 1))
sketch2.addConstraint(Sketcher.Constraint("Tangent", 21, 2, 22, 1))
sketch2.addConstraint(Sketcher.Constraint("Tangent", 22, 2, 23, 1))
sketch2.addConstraint(Sketcher.Constraint("Coincident", 23, 2, 24, 1))
sketch2.addConstraint(Sketcher.Constraint("Coincident", 24, 2, 25, 1))
sketch2.addConstraint(Sketcher.Constraint("Tangent", 25, 2, 26, 1))
sketch2.addConstraint(Sketcher.Constraint("Tangent", 26, 2, 27, 1))
sketch2.addConstraint(Sketcher.Constraint("Tangent", 27, 2, 28, 2))
sketch2.addConstraint(Sketcher.Constraint("Tangent", 28, 1, 29, 1))
sketch2.addConstraint(Sketcher.Constraint("Tangent", 29, 2, 30, 2))
sketch2.addConstraint(Sketcher.Constraint("Tangent", 30, 1, 31, 1))
sketch2.addConstraint(Sketcher.Constraint("Tangent", 31, 2, 32, 2))
sketch2.addConstraint(Sketcher.Constraint("Tangent", 32, 1, 33, 1))
sketch2.addConstraint(Sketcher.Constraint("Coincident", 33, 2, 0, 1))
sketch2.addConstraint(Sketcher.Constraint("Tangent", 35, 2, 36, 1))
sketch2.addConstraint(Sketcher.Constraint("Tangent", 36, 2, 37, 1))
sketch2.addConstraint(Sketcher.Constraint("Tangent", 37, 2, 38, 1))
sketch2.addConstraint(Sketcher.Constraint("Tangent", 38, 2, 39, 1))
sketch2.addConstraint(Sketcher.Constraint("Tangent", 39, 2, 40, 1))
sketch2.addConstraint(Sketcher.Constraint("Tangent", 40, 2, 35, 1))
sketch2.addConstraint(Sketcher.Constraint("Coincident", 43, 2, 44, 1))
sketch2.addConstraint(Sketcher.Constraint("Coincident", 44, 2, 45, 1))
sketch2.addConstraint(Sketcher.Constraint("Tangent", 45, 2, 46, 1))
sketch2.addConstraint(Sketcher.Constraint("Tangent", 46, 2, 47, 1))
sketch2.addConstraint(Sketcher.Constraint("Coincident", 47, 2, 48, 1))
sketch2.addConstraint(Sketcher.Constraint("Coincident", 48, 2, 49, 1))
sketch2.addConstraint(Sketcher.Constraint("Tangent", 49, 2, 50, 1))
sketch2.addConstraint(Sketcher.Constraint("Tangent", 50, 2, 43, 1))
sketch2.addConstraint(Sketcher.Constraint("Vertical", 0))
sketch2.addConstraint(Sketcher.Constraint("Horizontal", 1))
sketch2.addConstraint(Sketcher.Constraint("Vertical", 3))
sketch2.addConstraint(Sketcher.Constraint("Horizontal", 5))
sketch2.addConstraint(Sketcher.Constraint("Vertical", 6))
sketch2.addConstraint(Sketcher.Constraint("Vertical", 12))
sketch2.addConstraint(Sketcher.Constraint("Vertical", 18))
sketch2.addConstraint(Sketcher.Constraint("Horizontal", 19))
sketch2.addConstraint(Sketcher.Constraint("Vertical", 23))
sketch2.addConstraint(Sketcher.Constraint("Horizontal", 24))
sketch2.addConstraint(Sketcher.Constraint("Vertical", 25))
sketch2.addConstraint(Sketcher.Constraint("Vertical", 29))
sketch2.addConstraint(Sketcher.Constraint("Horizontal", 33))
sketch2.addConstraint(Sketcher.Constraint("Vertical", 35))
sketch2.addConstraint(Sketcher.Constraint("Coincident", 18, 2, -1, 1))
sketch2.addConstraint(Sketcher.Constraint("Coincident", 51, 3, 32, 3))
sketch2.addConstraint(Sketcher.Constraint("Equal", 2, 4))
sketch2.addConstraint(Sketcher.Constraint("Equal", 7, 9))
sketch2.addConstraint(Sketcher.Constraint("Equal", 9, 11))
sketch2.addConstraint(Sketcher.Constraint("Equal", 11, 13))
sketch2.addConstraint(Sketcher.Constraint("Equal", 13, 15))
sketch2.addConstraint(Sketcher.Constraint("Equal", 15, 17))
sketch2.addConstraint(Sketcher.Constraint("Equal", 17, 20))
sketch2.addConstraint(Sketcher.Constraint("Equal", 20, 22))
sketch2.addConstraint(Sketcher.Constraint("Equal", 26, 28))
sketch2.addConstraint(Sketcher.Constraint("Equal", 28, 30))
sketch2.addConstraint(Sketcher.Constraint("Equal", 30, 32))
sketch2.addConstraint(Sketcher.Constraint("Equal", 22, 36))
sketch2.addConstraint(Sketcher.Constraint("Equal", 36, 38))
sketch2.addConstraint(Sketcher.Constraint("Equal", 38, 40))
sketch2.addConstraint(Sketcher.Constraint("Equal", 34, 41))
sketch2.addConstraint(Sketcher.Constraint("Equal", 41, 42))
sketch2.addConstraint(Sketcher.Constraint("Equal", 4, 43))
sketch2.addConstraint(Sketcher.Constraint("Equal", 43, 45))
sketch2.addConstraint(Sketcher.Constraint("Equal", 45, 47))
sketch2.addConstraint(Sketcher.Constraint("Equal", 47, 49))
sketch2.addConstraint(Sketcher.Constraint("Equal", 42, 51))
sketch2.addConstraint(Sketcher.Constraint("PointOnObject", 7, 3, -2))
sketch2.addConstraint(Sketcher.Constraint("PointOnObject", 11, 3, -2))
sketch2.addConstraint(Sketcher.Constraint("PointOnObject", 13, 3, -2))
sketch2.addConstraint(Sketcher.Constraint("PointOnObject", 17, 3, -2))
sketch2.addConstraint(Sketcher.Constraint("PointOnObject", 20, 3, -1))
sketch2.addConstraint(Sketcher.Constraint("PointOnObject", 0, 2, -2))
sketch2.addConstraint(Sketcher.Constraint("PointOnObject", 5, 2, -2))
sketch2.addConstraint(Sketcher.Constraint("PointOnObject", 11, 2, -2))
sketch2.addConstraint(Sketcher.Constraint("PointOnObject", 23, 2, -1))
sketch2.addConstraint(Sketcher.Constraint("Parallel", 8, 14))
sketch2.addConstraint(Sketcher.Constraint("Parallel", 10, 16))
sketch2.addConstraint(Sketcher.Constraint("Parallel", 16, 21))
sketch2.addConstraint(Sketcher.Constraint("Parallel", 14, 37))
sketch2.addConstraint(Sketcher.Constraint("Parallel", 21, 39))
sketch2.addConstraint(Sketcher.Constraint("Perpendicular", 31, 44))
sketch2.addConstraint(Sketcher.Constraint("Perpendicular", 44, 46))
sketch2.addConstraint(Sketcher.Constraint("Perpendicular", 46, 48))
sketch2.addConstraint(Sketcher.Constraint("Perpendicular", 48, 50))
sketch2.addConstraint(Sketcher.Constraint("Horizontal", 51, 3, 0, 2))
sketch2.addConstraint(Sketcher.Constraint("Vertical", 2, 3, 4, 3))
sketch2.addConstraint(Sketcher.Constraint("Vertical", 22, 3, 36, 3))
sketch2.addConstraint(Sketcher.Constraint("Vertical", 20, 3, 38, 3))
sketch2.addConstraint(Sketcher.Constraint("Vertical", 1, 2, 2, 2))
sketch2.addConstraint(Sketcher.Constraint("Equal", 0, 3))
sketch2.addConstraint(Sketcher.Constraint("Equal", 23, 29))
sketch2.addConstraint(Sketcher.Constraint("Equal", 46, 50))
sketch2.addConstraint(Sketcher.Constraint("Diameter", 34, 3.0))
sketch2.addConstraint(Sketcher.Constraint("Radius", 26, 3.0))
sketch2.addConstraint(Sketcher.Constraint("Radius", 7, 1.1))
sketch2.addConstraint(Sketcher.Constraint("DistanceX", 1, 2, 1, 1, 1.0))
sketch2.addConstraint(Sketcher.Constraint("DistanceY", 23, 2, 23, 1, 5.0))
sketch2.addConstraint(Sketcher.Constraint("Angle", 8, Q("-165 deg")))
sketch2.addConstraint(Sketcher.Constraint("Angle", 10, Q("-55 deg")))
sketch2.addConstraint(Sketcher.Constraint("Angle", 27, Q("135 deg")))
sketch2.addConstraint(Sketcher.Constraint("Radius", 2, 0.75))
sketch2.addConstraint(Sketcher.Constraint("Distance", 44, 3.0))
sketch2.addConstraint(Sketcher.Constraint("Distance", 46, 2.0))
sketch2.addConstraint(Sketcher.Constraint("DistanceX", 34, 3, -1, 1, 10.0))
sketch2.addConstraint(Sketcher.Constraint("DistanceY", -1, 1, 34, 3, 10.0))
sketch2.addConstraint(Sketcher.Constraint("DistanceX", 41, 3, -1, 1, 15.0))
sketch2.addConstraint(Sketcher.Constraint("DistanceY", -1, 1, 41, 3, 15.0))
sketch2.addConstraint(Sketcher.Constraint("DistanceX", 42, 3, -1, 1, 20.0))
sketch2.addConstraint(Sketcher.Constraint("DistanceY", -1, 1, 42, 3, 33.0))
sketch2.addConstraint(Sketcher.Constraint("Angle", 31, Q("57.5 deg")))
sketch2.addConstraint(Sketcher.Constraint("DistanceX", 26, 3, -1, 1, 21.23))
sketch2.addConstraint(Sketcher.Constraint("DistanceX", 28, 3, -1, 1, 20.23))
sketch2.addConstraint(Sketcher.Constraint("DistanceY", 18, 2, 18, 1, 5.091298))
sketch2.addConstraint(Sketcher.Constraint("DistanceY", -1, 1, 2, 3, 44.299))
sketch2.addConstraint(Sketcher.Constraint("DistanceX", 19, 2, 19, 1, 2.133609))
sketch2.addConstraint(Sketcher.Constraint("DistanceY", 25, 1, 25, 2, 24.405211))
sketch2.addConstraint(Sketcher.Constraint("DistanceY", -1, 1, 47, 3, 38.626699))
sketch2.addConstraint(Sketcher.Constraint("Distance", 14, 4.200359))
sketch2.addConstraint(Sketcher.Constraint("DistanceY", 6, 2, 6, 1, 6.245903))
sketch2.addConstraint(Sketcher.Constraint("DistanceY", 12, 2, 12, 1, 9.543568))
sketch2.addConstraint(Sketcher.Constraint("DistanceX", 45, 3, -1, 1, 17.160048))
sketch2.addConstraint(Sketcher.Constraint("DistanceY", -1, 1, 49, 3, 36.208851))
sketch2.addConstraint(Sketcher.Constraint("DistanceX", 43, 2, -1, 1, 13.99733))
sketch2.addConstraint(Sketcher.Constraint("DistanceX", 48, 2, -1, 1, 15.07193))
sketch2.addConstraint(Sketcher.Constraint("DistanceY", -1, 1, 36, 3, 17.686932))
sketch2.setExpression("Constraints[111]", "Params.sketch2_diameter")
sketch2.setExpression("Constraints[112]", "Params.sketch2_radius")
sketch2.setExpression("Constraints[113]", "Params.sketch2_radius2")
sketch2.setExpression("Constraints[114]", "Params.sketch2_width")
sketch2.setExpression("Constraints[115]", "Params.sketch2_height")
pad2 = body.newObject("PartDesign::Pad", "Pad001")
pad2.Profile = sketch2
pad2.setExpression("Length", "Params.pad2_length")
pad2.Reversed = True

doc.recompute()
